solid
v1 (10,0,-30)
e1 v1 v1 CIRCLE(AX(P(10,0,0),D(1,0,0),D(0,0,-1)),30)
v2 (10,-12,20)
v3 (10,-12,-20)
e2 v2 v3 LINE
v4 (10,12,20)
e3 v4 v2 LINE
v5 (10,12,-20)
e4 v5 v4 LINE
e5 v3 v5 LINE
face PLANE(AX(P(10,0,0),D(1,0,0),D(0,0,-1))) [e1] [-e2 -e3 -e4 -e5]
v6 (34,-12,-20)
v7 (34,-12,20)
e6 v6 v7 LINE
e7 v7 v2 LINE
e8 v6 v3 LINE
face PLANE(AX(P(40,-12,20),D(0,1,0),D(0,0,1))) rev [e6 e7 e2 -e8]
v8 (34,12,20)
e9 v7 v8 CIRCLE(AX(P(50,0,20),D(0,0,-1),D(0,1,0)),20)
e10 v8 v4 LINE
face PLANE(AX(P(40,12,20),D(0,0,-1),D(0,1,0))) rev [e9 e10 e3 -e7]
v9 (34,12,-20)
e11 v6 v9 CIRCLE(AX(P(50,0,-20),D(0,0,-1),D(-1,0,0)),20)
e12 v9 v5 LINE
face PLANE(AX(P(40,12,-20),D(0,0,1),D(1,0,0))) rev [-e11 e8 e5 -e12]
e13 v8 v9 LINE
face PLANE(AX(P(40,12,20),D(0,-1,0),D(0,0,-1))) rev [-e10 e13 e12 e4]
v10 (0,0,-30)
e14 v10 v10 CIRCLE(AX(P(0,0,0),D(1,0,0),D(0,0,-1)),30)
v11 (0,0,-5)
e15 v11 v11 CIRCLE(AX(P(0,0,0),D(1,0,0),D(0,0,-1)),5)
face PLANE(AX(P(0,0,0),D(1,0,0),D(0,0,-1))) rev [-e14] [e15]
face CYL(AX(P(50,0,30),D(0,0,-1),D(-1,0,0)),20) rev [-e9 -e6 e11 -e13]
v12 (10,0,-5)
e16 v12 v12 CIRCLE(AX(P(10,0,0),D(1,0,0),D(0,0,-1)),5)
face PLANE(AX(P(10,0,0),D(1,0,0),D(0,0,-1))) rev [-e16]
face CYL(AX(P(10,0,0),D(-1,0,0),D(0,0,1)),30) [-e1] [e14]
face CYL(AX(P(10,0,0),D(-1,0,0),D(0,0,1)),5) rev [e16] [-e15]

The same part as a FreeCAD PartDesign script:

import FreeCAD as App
import Part
import Sketcher
from FreeCAD import Vector
Q = App.Units.Quantity


def add_polygon(sketch, points):
    """Adds a closed chain of lines whose ends are joined by coincident constraints."""
    first, n = sketch.GeometryCount, len(points)
    for a, b in zip(points, points[1:] + points[:1]):
        sketch.addGeometry(Part.LineSegment(App.Vector(*a, 0), App.Vector(*b, 0)), False)
    for i in range(n):
        sketch.addConstraint(Sketcher.Constraint("Coincident", first + i, 2, first + (i + 1) % n, 1))

doc = App.newDocument("Part")
body = doc.addObject("PartDesign::Body", "Body")

# Sketch on YZ plane
sketch1 = body.newObject("Sketcher::SketchObject", "Sketch")
sketch1.AttachmentSupport = (doc.getObject("YZ_Plane"), [""])
sketch1.MapMode = "FlatFace"
sketch1.addGeometry([
    Part.Circle(Vector(0, 0, 0), Vector(0, 0, 1), 30),
    Part.Circle(Vector(0, 0, 0), Vector(0, 0, 1), 5),
], False)
sketch1.addConstraint([
    Sketcher.Constraint("Coincident", 0, 3, -1, 1),
    Sketcher.Constraint("Coincident", 1, 3, -1, 1),
    Sketcher.Constraint("Diameter", 0, Q("60 mm")),
    Sketcher.Constraint("Diameter", 1, Q("10 mm")),
])
pad1 = body.newObject("PartDesign::Pad", "Pad")
pad1.Profile = sketch1
pad1.Length = 10

# Sketch on YZ plane
sketch2 = body.newObject("Sketcher::SketchObject", "Sketch001")
sketch2.AttachmentSupport = (doc.getObject("YZ_Plane"), [""])
sketch2.MapMode = "FlatFace"
sketch2.AttachmentOffset = App.Placement(Vector(0, 0, 10), App.Rotation())
add_polygon(sketch2, [(12, 20), (-12, 20), (-12, -20), (12, -20)])  # lines 0-3
sketch2.addConstraint([
    Sketcher.Constraint("Horizontal", 0),
    Sketcher.Constraint("Vertical", 1),
    Sketcher.Constraint("Horizontal", 2),
    Sketcher.Constraint("Vertical", 3),
    Sketcher.Constraint("Symmetric", 0, 2, 2, 2, -1, 1),
    Sketcher.Constraint("DistanceX", 0, 2, 0, 1, Q("24 mm")),
    Sketcher.Constraint("DistanceY", 1, 2, 1, 1, Q("40 mm")),
])
pad2 = body.newObject("PartDesign::Pad", "Pad001")
pad2.Profile = sketch2
pad2.Length = 30

# Sketch on XY plane
sketch3 = body.newObject("Sketcher::SketchObject", "Sketch002")
sketch3.AttachmentSupport = (doc.getObject("XY_Plane"), [""])
sketch3.MapMode = "FlatFace"
sketch3.AttachmentOffset = App.Placement(Vector(0, 0, -20), App.Rotation())
sketch3.addGeometry(Part.Circle(Vector(50, 0, 0), Vector(0, 0, 1), 20), False)
sketch3.addConstraint([
    Sketcher.Constraint("PointOnObject", 0, 3, -1),
    Sketcher.Constraint("Diameter", 0, Q("40 mm")),
    Sketcher.Constraint("DistanceX", -1, 1, 0, 3, Q("50 mm")),
])
pocket1 = body.newObject("PartDesign::Pocket", "Pocket")
pocket1.Profile = sketch3
pocket1.Type = "ThroughAll"
pocket1.Reversed = True

doc.recompute()
